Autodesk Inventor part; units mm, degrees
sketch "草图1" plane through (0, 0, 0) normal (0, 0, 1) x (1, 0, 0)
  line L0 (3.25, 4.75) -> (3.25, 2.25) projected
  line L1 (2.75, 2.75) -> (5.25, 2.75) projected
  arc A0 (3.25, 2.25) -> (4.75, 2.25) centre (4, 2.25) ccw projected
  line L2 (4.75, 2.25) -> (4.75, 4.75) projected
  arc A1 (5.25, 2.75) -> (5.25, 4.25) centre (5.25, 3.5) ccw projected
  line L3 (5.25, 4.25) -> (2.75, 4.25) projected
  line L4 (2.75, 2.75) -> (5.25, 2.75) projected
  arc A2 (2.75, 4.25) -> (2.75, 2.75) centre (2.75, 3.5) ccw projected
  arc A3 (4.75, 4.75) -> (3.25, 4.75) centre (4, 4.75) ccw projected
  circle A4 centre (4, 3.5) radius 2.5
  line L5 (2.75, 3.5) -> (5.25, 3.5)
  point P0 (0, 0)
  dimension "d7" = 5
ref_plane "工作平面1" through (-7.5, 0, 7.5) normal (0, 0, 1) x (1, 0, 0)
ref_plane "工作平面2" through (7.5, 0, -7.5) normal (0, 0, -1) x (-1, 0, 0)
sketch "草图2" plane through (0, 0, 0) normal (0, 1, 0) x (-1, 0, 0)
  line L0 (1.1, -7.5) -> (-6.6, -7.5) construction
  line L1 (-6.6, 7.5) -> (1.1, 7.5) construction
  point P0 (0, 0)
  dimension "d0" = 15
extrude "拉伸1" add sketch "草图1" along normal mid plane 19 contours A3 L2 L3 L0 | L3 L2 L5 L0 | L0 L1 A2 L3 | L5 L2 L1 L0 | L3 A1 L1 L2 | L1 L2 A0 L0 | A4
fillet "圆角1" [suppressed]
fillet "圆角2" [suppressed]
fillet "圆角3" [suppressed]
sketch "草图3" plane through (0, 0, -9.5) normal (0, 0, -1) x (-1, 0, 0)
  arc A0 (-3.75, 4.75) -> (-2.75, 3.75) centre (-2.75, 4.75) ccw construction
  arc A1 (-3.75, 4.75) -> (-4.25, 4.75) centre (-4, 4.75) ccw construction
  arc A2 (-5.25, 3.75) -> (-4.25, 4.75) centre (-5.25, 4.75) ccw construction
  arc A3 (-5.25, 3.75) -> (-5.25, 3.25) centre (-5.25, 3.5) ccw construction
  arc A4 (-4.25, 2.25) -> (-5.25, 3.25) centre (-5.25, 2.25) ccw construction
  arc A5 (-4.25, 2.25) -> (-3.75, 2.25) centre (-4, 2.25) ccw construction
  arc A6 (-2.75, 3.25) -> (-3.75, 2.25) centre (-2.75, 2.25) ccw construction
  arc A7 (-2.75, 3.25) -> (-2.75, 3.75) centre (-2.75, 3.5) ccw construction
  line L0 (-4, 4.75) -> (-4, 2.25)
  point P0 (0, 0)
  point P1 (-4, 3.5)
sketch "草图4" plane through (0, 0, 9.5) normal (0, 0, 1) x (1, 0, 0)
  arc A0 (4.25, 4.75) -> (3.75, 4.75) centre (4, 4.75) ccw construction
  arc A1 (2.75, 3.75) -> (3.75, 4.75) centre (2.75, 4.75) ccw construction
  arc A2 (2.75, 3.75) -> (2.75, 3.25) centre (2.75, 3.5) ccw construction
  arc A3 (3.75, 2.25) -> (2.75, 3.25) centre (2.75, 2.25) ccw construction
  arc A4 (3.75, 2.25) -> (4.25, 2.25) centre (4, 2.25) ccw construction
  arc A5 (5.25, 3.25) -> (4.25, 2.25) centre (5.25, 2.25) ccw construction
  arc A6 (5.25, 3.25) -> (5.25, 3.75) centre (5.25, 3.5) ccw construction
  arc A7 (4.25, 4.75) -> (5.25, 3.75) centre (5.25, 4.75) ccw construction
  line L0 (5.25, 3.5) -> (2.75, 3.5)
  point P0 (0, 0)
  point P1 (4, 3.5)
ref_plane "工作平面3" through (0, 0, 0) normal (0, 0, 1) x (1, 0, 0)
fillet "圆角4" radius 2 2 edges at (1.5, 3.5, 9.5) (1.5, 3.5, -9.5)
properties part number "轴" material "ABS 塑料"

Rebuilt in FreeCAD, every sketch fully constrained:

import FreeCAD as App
import Part
import Sketcher


def edges_at(feature, points):
    """Names of the edges that pass closest to the given points."""
    edges = feature.Shape.Edges
    near = lambda p: min(range(len(edges)), key=lambda i: edges[i].distToShape(Part.Vertex(*p))[0])
    return sorted({f"Edge{near(p) + 1}" for p in points})

doc = App.newDocument("Part")
body = doc.addObject("PartDesign::Body", "Body")

sketch1 = body.newObject("Sketcher::SketchObject", "Sketch")
sketch1.AttachmentSupport = (doc.getObject("XY_Plane"), [""])
sketch1.MapMode = "FlatFace"
sketch1.addGeometry(Part.Circle(App.Vector(4, 3.5, 0), App.Vector(0, 0, 1), 2.5), False)
sketch1.addConstraint([
    Sketcher.Constraint("Diameter", 0, 5.0),
    Sketcher.Constraint("DistanceX", -1, 1, 0, 3, 4.0),
    Sketcher.Constraint("DistanceY", -1, 1, 0, 3, 3.5),
])
pad1 = body.newObject("PartDesign::Pad", "Pad")
pad1.Profile = sketch1
pad1.Length = 19
pad1.Midplane = True
doc.recompute()

fillet = body.newObject("PartDesign::Fillet", "Fillet")
fillet.Base = (pad1, edges_at(pad1, [(1.5, 3.5, 9.5), (1.5, 3.5, -9.5)]))
fillet.Radius = 2

doc.recompute()
